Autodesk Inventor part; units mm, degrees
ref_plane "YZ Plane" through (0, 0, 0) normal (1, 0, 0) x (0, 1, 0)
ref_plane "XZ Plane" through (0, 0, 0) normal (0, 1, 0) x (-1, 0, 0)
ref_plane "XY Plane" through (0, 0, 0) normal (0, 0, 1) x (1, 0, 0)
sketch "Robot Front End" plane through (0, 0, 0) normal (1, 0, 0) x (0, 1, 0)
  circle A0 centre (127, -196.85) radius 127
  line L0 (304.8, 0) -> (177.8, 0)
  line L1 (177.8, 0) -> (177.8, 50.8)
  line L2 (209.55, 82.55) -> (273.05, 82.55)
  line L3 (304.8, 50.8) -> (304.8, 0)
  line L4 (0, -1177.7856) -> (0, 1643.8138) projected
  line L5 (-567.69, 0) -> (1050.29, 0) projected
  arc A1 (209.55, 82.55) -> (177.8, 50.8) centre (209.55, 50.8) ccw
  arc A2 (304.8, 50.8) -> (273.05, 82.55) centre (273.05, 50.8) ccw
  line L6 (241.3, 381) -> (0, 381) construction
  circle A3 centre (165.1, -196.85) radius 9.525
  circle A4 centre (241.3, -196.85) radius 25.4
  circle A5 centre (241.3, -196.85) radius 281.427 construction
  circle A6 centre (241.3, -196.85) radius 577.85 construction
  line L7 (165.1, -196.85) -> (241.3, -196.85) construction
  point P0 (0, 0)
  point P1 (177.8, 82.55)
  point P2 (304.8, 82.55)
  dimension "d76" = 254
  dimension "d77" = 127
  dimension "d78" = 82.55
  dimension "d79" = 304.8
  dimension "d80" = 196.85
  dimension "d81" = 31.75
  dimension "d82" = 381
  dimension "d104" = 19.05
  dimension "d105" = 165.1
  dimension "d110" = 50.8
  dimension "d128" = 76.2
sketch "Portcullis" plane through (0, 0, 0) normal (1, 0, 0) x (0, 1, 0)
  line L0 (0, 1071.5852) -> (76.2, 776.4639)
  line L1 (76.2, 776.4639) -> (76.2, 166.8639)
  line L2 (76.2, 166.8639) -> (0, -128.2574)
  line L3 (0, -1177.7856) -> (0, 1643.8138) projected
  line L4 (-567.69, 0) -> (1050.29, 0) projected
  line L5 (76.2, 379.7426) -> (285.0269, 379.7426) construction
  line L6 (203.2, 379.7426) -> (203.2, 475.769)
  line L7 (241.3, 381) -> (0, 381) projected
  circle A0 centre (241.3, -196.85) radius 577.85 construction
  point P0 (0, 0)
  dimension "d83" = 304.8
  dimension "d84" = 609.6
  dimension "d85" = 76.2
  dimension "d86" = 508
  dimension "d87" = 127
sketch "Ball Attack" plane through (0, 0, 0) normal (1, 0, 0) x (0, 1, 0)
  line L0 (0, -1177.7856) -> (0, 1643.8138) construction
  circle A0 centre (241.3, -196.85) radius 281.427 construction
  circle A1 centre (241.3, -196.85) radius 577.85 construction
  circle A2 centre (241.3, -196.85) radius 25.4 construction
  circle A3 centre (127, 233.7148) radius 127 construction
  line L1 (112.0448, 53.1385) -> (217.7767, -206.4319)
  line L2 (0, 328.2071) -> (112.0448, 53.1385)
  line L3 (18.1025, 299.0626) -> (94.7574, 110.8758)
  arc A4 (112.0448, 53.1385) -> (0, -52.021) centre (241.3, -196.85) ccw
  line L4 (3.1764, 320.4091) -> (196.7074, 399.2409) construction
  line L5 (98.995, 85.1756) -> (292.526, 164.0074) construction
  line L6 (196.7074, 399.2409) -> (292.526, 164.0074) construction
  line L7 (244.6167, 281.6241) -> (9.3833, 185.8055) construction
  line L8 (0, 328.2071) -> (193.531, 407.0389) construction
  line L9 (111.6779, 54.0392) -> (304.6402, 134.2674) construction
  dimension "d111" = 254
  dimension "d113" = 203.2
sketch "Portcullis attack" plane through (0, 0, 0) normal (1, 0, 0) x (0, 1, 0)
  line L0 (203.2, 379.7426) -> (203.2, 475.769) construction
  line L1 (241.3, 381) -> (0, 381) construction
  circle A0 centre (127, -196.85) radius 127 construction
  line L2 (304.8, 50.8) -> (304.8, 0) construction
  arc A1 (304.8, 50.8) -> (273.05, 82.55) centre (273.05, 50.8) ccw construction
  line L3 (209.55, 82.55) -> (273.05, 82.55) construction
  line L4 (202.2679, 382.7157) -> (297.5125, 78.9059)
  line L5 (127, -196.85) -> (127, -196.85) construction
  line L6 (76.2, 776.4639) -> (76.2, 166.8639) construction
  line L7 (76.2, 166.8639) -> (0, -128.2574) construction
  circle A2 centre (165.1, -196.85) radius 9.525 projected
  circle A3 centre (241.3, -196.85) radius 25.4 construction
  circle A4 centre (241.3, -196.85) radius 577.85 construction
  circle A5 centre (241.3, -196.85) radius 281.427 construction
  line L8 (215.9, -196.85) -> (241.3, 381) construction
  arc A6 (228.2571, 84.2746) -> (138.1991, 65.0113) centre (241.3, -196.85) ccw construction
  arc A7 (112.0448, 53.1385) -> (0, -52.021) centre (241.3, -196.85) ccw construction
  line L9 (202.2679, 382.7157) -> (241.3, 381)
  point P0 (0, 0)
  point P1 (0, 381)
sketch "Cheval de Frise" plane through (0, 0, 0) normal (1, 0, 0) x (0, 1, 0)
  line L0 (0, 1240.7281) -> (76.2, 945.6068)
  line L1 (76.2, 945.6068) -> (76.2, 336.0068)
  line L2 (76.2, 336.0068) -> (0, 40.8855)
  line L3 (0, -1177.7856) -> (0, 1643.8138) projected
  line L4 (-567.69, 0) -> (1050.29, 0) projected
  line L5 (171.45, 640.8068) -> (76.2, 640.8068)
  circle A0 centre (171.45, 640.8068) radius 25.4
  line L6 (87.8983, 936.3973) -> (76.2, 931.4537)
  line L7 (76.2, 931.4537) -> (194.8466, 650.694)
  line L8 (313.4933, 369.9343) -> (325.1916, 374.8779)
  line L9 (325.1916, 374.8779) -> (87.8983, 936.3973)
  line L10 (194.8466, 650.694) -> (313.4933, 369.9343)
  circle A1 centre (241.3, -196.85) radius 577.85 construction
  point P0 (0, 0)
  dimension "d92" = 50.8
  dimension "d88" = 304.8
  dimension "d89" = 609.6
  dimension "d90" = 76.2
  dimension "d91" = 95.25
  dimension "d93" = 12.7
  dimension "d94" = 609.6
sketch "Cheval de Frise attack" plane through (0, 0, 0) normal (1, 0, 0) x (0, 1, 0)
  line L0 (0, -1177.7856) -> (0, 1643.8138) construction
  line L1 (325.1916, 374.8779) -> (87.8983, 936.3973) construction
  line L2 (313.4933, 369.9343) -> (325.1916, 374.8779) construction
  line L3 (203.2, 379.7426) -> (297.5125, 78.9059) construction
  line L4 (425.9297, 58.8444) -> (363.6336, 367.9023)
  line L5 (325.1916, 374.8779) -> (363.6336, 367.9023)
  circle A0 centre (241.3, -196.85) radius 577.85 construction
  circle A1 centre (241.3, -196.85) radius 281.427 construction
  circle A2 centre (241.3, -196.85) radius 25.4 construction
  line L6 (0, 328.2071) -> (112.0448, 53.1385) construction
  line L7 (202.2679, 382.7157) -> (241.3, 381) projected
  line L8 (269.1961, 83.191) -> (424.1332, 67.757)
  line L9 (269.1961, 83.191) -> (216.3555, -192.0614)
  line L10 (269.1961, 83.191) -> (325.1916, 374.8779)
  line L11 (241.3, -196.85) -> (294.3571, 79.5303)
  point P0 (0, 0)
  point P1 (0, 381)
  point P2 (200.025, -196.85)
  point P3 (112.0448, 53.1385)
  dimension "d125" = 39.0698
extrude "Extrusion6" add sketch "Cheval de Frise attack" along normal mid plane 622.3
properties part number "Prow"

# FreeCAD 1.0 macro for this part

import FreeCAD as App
import Part
import Sketcher

V = App.Vector
Q = App.Units.Quantity


def add_polygon(sketch, points):
    """Adds a closed chain of lines whose ends are joined by coincident constraints."""
    first, n = sketch.GeometryCount, len(points)
    for a, b in zip(points, points[1:] + points[:1]):
        sketch.addGeometry(Part.LineSegment(App.Vector(*a, 0), App.Vector(*b, 0)), False)
    for i in range(n):
        sketch.addConstraint(Sketcher.Constraint("Coincident", first + i, 2, first + (i + 1) % n, 1))

doc = App.newDocument("Part")
params = doc.addObject("Spreadsheet::Sheet", "Params")
for row, (alias, value) in enumerate([
    ("pad1_length", "24.5 in"),
], start=1):
    params.set(f"A{row}", alias)
    params.set(f"B{row}", "=" + value)
    params.setAlias(f"B{row}", alias)

body = doc.addObject("PartDesign::Body", "Body")

sketch1 = doc.addObject("Sketcher::SketchObject", "Sketch")
body.addObject(sketch1)
sketch1.AttachmentSupport = (doc.YZ_Plane, [""])
sketch1.MapMode = "FlatFace"
add_polygon(sketch1, [(269, 83), (424, 68), (364, 368), (325, 375)])
sketch1.addConstraint([
    Sketcher.Constraint("Distance", 2, Q("39.0698 mm")),
    Sketcher.Constraint("DistanceX", 3, 2, 1, 2, Q("3.718 in")),
    Sketcher.Constraint("Distance", 1, Q("12.0544 in")),
    Sketcher.Constraint("DistanceY", -1, 1, 0, 2, Q("2.6676 in")),
    Sketcher.Constraint("DistanceY", 3, 2, 1, 2, Q("11.2091 in")),
    Sketcher.Constraint("Distance", 0, Q("155.704 mm")),
    Sketcher.Constraint("Distance", 3, Q("297.013 mm")),
    Sketcher.Constraint("DistanceX", -1, 1, 0, 2, Q("424.1332 mm")),
])
pad1 = doc.addObject("PartDesign::Pad", "Pad")
body.addObject(pad1)
pad1.Profile = sketch1
pad1.setExpression("Length", "Params.pad1_length")
pad1.Midplane = True

doc.recompute()
